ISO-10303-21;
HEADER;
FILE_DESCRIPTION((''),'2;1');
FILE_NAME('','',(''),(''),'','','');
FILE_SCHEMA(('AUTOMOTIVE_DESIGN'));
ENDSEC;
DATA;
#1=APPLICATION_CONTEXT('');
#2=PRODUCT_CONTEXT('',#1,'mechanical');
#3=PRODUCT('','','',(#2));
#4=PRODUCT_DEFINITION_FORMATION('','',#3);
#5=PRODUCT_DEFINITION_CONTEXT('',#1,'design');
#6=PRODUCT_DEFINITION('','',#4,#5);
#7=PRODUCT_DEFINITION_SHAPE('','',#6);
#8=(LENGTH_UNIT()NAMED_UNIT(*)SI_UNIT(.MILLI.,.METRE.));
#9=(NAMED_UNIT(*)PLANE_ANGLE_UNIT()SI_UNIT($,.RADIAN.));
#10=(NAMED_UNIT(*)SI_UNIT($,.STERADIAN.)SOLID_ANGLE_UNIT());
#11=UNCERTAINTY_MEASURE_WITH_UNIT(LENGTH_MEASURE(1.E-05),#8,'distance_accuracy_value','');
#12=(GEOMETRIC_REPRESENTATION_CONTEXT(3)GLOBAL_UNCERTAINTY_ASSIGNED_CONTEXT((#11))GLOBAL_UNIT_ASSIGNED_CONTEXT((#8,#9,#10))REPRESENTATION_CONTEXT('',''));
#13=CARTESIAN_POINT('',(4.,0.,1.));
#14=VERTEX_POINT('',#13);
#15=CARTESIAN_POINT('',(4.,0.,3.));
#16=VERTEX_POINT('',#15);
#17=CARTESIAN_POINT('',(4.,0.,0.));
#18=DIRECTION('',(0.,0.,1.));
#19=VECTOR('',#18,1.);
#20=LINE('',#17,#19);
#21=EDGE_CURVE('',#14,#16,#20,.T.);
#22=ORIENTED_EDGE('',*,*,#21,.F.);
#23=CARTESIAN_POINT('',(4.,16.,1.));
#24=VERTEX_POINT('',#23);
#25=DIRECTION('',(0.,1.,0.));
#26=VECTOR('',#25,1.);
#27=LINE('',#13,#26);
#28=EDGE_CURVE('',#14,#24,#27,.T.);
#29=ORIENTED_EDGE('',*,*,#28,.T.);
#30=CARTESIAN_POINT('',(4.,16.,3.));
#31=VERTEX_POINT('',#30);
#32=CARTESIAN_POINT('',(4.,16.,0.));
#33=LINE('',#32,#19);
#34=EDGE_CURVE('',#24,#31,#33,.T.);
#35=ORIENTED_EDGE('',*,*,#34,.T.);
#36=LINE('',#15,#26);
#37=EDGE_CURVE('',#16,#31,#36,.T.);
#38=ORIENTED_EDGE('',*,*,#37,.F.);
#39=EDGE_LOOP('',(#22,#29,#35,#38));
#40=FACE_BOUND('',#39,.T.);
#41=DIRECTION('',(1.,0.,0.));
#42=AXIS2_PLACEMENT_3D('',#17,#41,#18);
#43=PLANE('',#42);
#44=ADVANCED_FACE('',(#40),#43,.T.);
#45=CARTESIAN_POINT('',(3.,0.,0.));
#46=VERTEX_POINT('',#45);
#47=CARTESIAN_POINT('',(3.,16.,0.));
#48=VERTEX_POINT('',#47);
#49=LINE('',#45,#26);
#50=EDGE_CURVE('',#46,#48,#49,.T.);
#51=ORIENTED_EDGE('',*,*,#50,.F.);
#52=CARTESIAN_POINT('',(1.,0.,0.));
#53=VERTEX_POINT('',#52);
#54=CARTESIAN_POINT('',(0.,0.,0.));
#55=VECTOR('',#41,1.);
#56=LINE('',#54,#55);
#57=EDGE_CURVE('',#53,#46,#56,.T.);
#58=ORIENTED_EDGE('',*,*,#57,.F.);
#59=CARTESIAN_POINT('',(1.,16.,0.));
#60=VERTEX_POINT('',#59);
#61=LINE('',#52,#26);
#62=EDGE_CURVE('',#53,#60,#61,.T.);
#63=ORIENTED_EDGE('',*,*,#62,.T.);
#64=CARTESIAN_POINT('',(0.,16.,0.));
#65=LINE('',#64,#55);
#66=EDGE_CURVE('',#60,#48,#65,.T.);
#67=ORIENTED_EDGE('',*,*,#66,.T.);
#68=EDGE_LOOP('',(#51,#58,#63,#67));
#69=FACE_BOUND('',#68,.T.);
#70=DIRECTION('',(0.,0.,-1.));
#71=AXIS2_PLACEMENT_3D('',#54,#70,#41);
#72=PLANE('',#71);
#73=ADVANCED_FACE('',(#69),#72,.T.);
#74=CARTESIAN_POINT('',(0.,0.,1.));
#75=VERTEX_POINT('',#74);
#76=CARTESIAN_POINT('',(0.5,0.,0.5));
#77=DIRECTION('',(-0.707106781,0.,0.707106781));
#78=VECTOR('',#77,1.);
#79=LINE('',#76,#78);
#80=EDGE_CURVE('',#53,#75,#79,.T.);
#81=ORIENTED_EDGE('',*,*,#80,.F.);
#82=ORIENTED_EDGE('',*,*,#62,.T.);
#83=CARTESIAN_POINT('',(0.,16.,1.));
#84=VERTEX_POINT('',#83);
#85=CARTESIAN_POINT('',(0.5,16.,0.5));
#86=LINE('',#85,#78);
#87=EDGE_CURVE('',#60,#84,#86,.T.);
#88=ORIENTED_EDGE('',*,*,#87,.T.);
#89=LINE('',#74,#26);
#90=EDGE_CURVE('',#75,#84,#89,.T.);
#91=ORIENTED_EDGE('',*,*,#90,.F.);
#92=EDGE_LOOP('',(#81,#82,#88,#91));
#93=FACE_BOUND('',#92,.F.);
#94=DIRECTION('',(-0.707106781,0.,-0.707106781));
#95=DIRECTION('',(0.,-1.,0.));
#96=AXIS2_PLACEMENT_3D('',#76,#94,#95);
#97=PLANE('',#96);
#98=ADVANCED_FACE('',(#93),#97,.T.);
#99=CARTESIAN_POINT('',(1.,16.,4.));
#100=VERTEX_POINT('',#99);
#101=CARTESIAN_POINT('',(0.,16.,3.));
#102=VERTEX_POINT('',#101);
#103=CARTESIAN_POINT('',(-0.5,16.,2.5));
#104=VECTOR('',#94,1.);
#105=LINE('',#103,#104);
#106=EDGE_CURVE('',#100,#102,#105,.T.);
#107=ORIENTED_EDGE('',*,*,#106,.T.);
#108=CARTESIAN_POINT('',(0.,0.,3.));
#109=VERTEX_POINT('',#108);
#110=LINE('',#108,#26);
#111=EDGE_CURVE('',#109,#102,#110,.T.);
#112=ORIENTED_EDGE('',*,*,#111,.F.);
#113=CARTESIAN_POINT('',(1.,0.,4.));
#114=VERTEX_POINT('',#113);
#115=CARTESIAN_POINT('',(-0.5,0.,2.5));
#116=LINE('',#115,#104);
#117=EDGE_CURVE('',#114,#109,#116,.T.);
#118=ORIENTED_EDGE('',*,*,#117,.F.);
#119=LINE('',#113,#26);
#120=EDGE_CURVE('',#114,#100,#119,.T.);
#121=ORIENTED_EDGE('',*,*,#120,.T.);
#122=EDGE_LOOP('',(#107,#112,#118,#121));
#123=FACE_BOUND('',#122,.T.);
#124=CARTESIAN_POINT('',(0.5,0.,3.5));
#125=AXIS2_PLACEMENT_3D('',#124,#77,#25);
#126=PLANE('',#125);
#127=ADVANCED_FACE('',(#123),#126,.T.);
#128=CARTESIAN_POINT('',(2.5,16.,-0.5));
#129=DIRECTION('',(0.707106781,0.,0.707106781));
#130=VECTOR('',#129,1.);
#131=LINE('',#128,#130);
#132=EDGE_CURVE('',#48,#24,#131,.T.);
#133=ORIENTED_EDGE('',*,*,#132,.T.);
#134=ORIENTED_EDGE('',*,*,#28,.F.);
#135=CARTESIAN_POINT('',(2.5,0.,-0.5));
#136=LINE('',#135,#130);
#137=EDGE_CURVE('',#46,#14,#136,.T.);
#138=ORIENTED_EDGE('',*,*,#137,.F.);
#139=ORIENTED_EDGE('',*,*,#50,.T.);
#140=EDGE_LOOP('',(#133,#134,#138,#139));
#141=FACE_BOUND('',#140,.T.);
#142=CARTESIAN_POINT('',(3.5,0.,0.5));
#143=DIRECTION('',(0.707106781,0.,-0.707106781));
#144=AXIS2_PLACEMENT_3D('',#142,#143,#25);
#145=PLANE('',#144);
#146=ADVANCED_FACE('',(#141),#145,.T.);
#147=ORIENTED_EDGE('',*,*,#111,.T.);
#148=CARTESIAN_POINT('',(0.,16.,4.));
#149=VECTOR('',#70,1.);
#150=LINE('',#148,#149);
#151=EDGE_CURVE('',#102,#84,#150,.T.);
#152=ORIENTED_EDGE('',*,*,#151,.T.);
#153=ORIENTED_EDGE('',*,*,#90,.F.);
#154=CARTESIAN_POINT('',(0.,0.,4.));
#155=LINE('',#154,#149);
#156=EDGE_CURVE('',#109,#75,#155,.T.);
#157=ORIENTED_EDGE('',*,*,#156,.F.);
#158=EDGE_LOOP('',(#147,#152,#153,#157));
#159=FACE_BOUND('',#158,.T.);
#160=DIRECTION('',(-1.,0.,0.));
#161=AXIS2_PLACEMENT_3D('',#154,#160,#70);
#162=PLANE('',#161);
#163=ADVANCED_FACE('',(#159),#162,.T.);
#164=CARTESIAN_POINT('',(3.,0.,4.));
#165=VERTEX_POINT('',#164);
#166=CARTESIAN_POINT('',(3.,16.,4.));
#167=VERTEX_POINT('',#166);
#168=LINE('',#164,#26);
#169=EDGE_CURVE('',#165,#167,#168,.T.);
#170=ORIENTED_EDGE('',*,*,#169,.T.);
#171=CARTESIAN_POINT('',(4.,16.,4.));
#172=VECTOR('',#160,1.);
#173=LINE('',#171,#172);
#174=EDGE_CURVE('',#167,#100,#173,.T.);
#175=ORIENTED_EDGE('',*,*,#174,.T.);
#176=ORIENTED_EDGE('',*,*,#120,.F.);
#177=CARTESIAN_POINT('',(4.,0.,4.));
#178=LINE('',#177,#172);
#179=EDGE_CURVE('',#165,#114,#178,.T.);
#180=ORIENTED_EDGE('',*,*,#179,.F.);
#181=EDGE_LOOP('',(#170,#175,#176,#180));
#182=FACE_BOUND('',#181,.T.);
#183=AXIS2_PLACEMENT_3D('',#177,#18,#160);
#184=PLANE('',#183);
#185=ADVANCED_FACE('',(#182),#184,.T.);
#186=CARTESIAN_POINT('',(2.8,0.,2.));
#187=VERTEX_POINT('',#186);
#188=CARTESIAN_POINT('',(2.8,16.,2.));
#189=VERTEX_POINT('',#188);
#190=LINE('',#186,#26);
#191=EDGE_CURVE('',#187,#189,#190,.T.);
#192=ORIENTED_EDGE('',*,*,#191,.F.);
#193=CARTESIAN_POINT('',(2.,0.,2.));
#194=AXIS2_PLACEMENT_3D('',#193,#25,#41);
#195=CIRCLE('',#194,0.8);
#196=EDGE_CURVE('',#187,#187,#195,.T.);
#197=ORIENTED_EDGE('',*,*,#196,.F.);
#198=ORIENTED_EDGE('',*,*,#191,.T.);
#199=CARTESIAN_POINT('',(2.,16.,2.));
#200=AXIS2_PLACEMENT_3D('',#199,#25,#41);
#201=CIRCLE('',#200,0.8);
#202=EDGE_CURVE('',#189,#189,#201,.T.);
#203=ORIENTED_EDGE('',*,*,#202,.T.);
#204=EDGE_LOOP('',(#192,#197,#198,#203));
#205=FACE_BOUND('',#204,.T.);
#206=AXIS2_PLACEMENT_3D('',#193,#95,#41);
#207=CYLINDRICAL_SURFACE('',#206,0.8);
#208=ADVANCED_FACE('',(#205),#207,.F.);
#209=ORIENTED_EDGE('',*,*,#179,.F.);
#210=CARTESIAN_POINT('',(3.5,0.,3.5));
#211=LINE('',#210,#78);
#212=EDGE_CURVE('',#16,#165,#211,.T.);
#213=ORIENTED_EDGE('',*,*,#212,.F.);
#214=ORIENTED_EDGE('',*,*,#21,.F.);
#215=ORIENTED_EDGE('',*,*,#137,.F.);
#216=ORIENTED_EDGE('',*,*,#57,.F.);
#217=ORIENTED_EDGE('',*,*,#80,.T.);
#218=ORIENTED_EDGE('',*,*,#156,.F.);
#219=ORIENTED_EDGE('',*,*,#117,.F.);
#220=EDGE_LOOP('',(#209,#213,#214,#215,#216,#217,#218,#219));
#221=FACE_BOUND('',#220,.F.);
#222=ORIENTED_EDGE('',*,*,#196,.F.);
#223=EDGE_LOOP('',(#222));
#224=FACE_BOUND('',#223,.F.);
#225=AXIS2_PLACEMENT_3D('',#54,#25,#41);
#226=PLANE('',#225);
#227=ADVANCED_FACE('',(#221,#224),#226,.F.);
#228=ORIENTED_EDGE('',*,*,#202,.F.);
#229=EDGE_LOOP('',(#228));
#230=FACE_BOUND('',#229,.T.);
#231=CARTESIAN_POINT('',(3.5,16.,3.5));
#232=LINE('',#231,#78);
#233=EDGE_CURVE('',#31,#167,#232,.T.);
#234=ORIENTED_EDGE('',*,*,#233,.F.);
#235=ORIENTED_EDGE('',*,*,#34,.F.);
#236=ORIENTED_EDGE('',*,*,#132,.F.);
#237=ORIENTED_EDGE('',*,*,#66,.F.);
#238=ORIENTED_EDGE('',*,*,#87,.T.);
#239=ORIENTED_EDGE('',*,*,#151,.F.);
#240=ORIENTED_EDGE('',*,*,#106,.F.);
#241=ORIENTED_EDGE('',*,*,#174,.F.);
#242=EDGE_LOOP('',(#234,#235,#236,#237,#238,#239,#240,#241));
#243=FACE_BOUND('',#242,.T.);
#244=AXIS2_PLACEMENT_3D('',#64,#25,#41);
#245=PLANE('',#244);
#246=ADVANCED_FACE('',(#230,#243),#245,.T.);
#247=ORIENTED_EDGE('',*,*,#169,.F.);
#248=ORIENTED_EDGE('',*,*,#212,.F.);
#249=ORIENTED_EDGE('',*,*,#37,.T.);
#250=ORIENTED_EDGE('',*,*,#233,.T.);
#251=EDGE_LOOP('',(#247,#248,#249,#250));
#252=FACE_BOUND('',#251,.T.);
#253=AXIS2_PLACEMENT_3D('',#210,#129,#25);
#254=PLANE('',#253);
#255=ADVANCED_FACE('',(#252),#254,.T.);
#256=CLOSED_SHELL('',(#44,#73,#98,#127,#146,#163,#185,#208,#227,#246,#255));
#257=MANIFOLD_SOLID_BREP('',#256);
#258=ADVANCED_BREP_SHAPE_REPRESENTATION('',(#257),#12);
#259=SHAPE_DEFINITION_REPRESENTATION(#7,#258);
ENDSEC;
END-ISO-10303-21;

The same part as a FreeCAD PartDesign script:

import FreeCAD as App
import Part
import Sketcher
Q = App.Units.Quantity


def edges_at(feature, points):
    """Names of the edges that pass closest to the given points."""
    edges = feature.Shape.Edges
    near = lambda p: min(range(len(edges)), key=lambda i: edges[i].distToShape(Part.Vertex(*p))[0])
    return sorted({f"Edge{near(p) + 1}" for p in points})

doc = App.newDocument("Part")
params = doc.addObject("Spreadsheet::Sheet", "Params")
for row, (alias, value) in enumerate([
    ("sketch1_diameter", "1.6 mm"),
    ("sketch1_width", "4 mm"),
    ("pad1_length", "16 mm"),
    ("chamfer_size", "1 mm"),
], start=1):
    params.set(f"A{row}", alias)
    params.set(f"B{row}", "=" + value)
    params.setAlias(f"B{row}", alias)

body = doc.addObject("PartDesign::Body", "Body")

# Sketch on XZ plane
sketch1 = body.newObject("Sketcher::SketchObject", "Sketch")
sketch1.AttachmentSupport = (doc.getObject("XZ_Plane"), [""])
sketch1.MapMode = "FlatFace"
sketch1.addGeometry([
    Part.LineSegment(App.Vector(4, 0, 0), App.Vector(0, 0, 0)),  # 0
    Part.LineSegment(App.Vector(0, 0, 0), App.Vector(0, 4, 0)),  # 1
    Part.LineSegment(App.Vector(0, 4, 0), App.Vector(4, 4, 0)),  # 2
    Part.LineSegment(App.Vector(4, 4, 0), App.Vector(4, 0, 0)),  # 3
    Part.Circle(App.Vector(2, 2, 0), App.Vector(0, 0, 1), 0.8),  # 4
], False)
sketch1.addConstraint([
    Sketcher.Constraint("Coincident", 0, 2, 1, 1),
    Sketcher.Constraint("Coincident", 1, 2, 2, 1),
    Sketcher.Constraint("Coincident", 2, 2, 3, 1),
    Sketcher.Constraint("Coincident", 3, 2, 0, 1),
    Sketcher.Constraint("Horizontal", 0),
    Sketcher.Constraint("Vertical", 1),
    Sketcher.Constraint("Horizontal", 2),
    Sketcher.Constraint("Vertical", 3),
    Sketcher.Constraint("Coincident", 0, 2, -1, 1),
    Sketcher.Constraint("Equal", 2, 1),
    Sketcher.Constraint("Diameter", 4, Q("1.6 mm")),
    Sketcher.Constraint("DistanceX", 0, 2, 0, 1, Q("4 mm")),
    Sketcher.Constraint("DistanceX", -1, 1, 4, 3, Q("2 mm")),
    Sketcher.Constraint("DistanceY", -1, 1, 4, 3, Q("2 mm")),
])
sketch1.setExpression("Constraints[10]", "Params.sketch1_diameter")
sketch1.setExpression("Constraints[11]", "Params.sketch1_width")
pad1 = body.newObject("PartDesign::Pad", "Pad")
pad1.Profile = sketch1
pad1.setExpression("Length", "Params.pad1_length")
pad1.Reversed = True
doc.recompute()

chamfer = body.newObject("PartDesign::Chamfer", "Chamfer")
chamfer.Base = (pad1, edges_at(pad1, [
    (4, 8, 4),
    (0, 8, 4),
    (0, 8, 0),
    (4, 8, 0),
]))
chamfer.setExpression("Size", "Params.chamfer_size")

doc.recompute()
